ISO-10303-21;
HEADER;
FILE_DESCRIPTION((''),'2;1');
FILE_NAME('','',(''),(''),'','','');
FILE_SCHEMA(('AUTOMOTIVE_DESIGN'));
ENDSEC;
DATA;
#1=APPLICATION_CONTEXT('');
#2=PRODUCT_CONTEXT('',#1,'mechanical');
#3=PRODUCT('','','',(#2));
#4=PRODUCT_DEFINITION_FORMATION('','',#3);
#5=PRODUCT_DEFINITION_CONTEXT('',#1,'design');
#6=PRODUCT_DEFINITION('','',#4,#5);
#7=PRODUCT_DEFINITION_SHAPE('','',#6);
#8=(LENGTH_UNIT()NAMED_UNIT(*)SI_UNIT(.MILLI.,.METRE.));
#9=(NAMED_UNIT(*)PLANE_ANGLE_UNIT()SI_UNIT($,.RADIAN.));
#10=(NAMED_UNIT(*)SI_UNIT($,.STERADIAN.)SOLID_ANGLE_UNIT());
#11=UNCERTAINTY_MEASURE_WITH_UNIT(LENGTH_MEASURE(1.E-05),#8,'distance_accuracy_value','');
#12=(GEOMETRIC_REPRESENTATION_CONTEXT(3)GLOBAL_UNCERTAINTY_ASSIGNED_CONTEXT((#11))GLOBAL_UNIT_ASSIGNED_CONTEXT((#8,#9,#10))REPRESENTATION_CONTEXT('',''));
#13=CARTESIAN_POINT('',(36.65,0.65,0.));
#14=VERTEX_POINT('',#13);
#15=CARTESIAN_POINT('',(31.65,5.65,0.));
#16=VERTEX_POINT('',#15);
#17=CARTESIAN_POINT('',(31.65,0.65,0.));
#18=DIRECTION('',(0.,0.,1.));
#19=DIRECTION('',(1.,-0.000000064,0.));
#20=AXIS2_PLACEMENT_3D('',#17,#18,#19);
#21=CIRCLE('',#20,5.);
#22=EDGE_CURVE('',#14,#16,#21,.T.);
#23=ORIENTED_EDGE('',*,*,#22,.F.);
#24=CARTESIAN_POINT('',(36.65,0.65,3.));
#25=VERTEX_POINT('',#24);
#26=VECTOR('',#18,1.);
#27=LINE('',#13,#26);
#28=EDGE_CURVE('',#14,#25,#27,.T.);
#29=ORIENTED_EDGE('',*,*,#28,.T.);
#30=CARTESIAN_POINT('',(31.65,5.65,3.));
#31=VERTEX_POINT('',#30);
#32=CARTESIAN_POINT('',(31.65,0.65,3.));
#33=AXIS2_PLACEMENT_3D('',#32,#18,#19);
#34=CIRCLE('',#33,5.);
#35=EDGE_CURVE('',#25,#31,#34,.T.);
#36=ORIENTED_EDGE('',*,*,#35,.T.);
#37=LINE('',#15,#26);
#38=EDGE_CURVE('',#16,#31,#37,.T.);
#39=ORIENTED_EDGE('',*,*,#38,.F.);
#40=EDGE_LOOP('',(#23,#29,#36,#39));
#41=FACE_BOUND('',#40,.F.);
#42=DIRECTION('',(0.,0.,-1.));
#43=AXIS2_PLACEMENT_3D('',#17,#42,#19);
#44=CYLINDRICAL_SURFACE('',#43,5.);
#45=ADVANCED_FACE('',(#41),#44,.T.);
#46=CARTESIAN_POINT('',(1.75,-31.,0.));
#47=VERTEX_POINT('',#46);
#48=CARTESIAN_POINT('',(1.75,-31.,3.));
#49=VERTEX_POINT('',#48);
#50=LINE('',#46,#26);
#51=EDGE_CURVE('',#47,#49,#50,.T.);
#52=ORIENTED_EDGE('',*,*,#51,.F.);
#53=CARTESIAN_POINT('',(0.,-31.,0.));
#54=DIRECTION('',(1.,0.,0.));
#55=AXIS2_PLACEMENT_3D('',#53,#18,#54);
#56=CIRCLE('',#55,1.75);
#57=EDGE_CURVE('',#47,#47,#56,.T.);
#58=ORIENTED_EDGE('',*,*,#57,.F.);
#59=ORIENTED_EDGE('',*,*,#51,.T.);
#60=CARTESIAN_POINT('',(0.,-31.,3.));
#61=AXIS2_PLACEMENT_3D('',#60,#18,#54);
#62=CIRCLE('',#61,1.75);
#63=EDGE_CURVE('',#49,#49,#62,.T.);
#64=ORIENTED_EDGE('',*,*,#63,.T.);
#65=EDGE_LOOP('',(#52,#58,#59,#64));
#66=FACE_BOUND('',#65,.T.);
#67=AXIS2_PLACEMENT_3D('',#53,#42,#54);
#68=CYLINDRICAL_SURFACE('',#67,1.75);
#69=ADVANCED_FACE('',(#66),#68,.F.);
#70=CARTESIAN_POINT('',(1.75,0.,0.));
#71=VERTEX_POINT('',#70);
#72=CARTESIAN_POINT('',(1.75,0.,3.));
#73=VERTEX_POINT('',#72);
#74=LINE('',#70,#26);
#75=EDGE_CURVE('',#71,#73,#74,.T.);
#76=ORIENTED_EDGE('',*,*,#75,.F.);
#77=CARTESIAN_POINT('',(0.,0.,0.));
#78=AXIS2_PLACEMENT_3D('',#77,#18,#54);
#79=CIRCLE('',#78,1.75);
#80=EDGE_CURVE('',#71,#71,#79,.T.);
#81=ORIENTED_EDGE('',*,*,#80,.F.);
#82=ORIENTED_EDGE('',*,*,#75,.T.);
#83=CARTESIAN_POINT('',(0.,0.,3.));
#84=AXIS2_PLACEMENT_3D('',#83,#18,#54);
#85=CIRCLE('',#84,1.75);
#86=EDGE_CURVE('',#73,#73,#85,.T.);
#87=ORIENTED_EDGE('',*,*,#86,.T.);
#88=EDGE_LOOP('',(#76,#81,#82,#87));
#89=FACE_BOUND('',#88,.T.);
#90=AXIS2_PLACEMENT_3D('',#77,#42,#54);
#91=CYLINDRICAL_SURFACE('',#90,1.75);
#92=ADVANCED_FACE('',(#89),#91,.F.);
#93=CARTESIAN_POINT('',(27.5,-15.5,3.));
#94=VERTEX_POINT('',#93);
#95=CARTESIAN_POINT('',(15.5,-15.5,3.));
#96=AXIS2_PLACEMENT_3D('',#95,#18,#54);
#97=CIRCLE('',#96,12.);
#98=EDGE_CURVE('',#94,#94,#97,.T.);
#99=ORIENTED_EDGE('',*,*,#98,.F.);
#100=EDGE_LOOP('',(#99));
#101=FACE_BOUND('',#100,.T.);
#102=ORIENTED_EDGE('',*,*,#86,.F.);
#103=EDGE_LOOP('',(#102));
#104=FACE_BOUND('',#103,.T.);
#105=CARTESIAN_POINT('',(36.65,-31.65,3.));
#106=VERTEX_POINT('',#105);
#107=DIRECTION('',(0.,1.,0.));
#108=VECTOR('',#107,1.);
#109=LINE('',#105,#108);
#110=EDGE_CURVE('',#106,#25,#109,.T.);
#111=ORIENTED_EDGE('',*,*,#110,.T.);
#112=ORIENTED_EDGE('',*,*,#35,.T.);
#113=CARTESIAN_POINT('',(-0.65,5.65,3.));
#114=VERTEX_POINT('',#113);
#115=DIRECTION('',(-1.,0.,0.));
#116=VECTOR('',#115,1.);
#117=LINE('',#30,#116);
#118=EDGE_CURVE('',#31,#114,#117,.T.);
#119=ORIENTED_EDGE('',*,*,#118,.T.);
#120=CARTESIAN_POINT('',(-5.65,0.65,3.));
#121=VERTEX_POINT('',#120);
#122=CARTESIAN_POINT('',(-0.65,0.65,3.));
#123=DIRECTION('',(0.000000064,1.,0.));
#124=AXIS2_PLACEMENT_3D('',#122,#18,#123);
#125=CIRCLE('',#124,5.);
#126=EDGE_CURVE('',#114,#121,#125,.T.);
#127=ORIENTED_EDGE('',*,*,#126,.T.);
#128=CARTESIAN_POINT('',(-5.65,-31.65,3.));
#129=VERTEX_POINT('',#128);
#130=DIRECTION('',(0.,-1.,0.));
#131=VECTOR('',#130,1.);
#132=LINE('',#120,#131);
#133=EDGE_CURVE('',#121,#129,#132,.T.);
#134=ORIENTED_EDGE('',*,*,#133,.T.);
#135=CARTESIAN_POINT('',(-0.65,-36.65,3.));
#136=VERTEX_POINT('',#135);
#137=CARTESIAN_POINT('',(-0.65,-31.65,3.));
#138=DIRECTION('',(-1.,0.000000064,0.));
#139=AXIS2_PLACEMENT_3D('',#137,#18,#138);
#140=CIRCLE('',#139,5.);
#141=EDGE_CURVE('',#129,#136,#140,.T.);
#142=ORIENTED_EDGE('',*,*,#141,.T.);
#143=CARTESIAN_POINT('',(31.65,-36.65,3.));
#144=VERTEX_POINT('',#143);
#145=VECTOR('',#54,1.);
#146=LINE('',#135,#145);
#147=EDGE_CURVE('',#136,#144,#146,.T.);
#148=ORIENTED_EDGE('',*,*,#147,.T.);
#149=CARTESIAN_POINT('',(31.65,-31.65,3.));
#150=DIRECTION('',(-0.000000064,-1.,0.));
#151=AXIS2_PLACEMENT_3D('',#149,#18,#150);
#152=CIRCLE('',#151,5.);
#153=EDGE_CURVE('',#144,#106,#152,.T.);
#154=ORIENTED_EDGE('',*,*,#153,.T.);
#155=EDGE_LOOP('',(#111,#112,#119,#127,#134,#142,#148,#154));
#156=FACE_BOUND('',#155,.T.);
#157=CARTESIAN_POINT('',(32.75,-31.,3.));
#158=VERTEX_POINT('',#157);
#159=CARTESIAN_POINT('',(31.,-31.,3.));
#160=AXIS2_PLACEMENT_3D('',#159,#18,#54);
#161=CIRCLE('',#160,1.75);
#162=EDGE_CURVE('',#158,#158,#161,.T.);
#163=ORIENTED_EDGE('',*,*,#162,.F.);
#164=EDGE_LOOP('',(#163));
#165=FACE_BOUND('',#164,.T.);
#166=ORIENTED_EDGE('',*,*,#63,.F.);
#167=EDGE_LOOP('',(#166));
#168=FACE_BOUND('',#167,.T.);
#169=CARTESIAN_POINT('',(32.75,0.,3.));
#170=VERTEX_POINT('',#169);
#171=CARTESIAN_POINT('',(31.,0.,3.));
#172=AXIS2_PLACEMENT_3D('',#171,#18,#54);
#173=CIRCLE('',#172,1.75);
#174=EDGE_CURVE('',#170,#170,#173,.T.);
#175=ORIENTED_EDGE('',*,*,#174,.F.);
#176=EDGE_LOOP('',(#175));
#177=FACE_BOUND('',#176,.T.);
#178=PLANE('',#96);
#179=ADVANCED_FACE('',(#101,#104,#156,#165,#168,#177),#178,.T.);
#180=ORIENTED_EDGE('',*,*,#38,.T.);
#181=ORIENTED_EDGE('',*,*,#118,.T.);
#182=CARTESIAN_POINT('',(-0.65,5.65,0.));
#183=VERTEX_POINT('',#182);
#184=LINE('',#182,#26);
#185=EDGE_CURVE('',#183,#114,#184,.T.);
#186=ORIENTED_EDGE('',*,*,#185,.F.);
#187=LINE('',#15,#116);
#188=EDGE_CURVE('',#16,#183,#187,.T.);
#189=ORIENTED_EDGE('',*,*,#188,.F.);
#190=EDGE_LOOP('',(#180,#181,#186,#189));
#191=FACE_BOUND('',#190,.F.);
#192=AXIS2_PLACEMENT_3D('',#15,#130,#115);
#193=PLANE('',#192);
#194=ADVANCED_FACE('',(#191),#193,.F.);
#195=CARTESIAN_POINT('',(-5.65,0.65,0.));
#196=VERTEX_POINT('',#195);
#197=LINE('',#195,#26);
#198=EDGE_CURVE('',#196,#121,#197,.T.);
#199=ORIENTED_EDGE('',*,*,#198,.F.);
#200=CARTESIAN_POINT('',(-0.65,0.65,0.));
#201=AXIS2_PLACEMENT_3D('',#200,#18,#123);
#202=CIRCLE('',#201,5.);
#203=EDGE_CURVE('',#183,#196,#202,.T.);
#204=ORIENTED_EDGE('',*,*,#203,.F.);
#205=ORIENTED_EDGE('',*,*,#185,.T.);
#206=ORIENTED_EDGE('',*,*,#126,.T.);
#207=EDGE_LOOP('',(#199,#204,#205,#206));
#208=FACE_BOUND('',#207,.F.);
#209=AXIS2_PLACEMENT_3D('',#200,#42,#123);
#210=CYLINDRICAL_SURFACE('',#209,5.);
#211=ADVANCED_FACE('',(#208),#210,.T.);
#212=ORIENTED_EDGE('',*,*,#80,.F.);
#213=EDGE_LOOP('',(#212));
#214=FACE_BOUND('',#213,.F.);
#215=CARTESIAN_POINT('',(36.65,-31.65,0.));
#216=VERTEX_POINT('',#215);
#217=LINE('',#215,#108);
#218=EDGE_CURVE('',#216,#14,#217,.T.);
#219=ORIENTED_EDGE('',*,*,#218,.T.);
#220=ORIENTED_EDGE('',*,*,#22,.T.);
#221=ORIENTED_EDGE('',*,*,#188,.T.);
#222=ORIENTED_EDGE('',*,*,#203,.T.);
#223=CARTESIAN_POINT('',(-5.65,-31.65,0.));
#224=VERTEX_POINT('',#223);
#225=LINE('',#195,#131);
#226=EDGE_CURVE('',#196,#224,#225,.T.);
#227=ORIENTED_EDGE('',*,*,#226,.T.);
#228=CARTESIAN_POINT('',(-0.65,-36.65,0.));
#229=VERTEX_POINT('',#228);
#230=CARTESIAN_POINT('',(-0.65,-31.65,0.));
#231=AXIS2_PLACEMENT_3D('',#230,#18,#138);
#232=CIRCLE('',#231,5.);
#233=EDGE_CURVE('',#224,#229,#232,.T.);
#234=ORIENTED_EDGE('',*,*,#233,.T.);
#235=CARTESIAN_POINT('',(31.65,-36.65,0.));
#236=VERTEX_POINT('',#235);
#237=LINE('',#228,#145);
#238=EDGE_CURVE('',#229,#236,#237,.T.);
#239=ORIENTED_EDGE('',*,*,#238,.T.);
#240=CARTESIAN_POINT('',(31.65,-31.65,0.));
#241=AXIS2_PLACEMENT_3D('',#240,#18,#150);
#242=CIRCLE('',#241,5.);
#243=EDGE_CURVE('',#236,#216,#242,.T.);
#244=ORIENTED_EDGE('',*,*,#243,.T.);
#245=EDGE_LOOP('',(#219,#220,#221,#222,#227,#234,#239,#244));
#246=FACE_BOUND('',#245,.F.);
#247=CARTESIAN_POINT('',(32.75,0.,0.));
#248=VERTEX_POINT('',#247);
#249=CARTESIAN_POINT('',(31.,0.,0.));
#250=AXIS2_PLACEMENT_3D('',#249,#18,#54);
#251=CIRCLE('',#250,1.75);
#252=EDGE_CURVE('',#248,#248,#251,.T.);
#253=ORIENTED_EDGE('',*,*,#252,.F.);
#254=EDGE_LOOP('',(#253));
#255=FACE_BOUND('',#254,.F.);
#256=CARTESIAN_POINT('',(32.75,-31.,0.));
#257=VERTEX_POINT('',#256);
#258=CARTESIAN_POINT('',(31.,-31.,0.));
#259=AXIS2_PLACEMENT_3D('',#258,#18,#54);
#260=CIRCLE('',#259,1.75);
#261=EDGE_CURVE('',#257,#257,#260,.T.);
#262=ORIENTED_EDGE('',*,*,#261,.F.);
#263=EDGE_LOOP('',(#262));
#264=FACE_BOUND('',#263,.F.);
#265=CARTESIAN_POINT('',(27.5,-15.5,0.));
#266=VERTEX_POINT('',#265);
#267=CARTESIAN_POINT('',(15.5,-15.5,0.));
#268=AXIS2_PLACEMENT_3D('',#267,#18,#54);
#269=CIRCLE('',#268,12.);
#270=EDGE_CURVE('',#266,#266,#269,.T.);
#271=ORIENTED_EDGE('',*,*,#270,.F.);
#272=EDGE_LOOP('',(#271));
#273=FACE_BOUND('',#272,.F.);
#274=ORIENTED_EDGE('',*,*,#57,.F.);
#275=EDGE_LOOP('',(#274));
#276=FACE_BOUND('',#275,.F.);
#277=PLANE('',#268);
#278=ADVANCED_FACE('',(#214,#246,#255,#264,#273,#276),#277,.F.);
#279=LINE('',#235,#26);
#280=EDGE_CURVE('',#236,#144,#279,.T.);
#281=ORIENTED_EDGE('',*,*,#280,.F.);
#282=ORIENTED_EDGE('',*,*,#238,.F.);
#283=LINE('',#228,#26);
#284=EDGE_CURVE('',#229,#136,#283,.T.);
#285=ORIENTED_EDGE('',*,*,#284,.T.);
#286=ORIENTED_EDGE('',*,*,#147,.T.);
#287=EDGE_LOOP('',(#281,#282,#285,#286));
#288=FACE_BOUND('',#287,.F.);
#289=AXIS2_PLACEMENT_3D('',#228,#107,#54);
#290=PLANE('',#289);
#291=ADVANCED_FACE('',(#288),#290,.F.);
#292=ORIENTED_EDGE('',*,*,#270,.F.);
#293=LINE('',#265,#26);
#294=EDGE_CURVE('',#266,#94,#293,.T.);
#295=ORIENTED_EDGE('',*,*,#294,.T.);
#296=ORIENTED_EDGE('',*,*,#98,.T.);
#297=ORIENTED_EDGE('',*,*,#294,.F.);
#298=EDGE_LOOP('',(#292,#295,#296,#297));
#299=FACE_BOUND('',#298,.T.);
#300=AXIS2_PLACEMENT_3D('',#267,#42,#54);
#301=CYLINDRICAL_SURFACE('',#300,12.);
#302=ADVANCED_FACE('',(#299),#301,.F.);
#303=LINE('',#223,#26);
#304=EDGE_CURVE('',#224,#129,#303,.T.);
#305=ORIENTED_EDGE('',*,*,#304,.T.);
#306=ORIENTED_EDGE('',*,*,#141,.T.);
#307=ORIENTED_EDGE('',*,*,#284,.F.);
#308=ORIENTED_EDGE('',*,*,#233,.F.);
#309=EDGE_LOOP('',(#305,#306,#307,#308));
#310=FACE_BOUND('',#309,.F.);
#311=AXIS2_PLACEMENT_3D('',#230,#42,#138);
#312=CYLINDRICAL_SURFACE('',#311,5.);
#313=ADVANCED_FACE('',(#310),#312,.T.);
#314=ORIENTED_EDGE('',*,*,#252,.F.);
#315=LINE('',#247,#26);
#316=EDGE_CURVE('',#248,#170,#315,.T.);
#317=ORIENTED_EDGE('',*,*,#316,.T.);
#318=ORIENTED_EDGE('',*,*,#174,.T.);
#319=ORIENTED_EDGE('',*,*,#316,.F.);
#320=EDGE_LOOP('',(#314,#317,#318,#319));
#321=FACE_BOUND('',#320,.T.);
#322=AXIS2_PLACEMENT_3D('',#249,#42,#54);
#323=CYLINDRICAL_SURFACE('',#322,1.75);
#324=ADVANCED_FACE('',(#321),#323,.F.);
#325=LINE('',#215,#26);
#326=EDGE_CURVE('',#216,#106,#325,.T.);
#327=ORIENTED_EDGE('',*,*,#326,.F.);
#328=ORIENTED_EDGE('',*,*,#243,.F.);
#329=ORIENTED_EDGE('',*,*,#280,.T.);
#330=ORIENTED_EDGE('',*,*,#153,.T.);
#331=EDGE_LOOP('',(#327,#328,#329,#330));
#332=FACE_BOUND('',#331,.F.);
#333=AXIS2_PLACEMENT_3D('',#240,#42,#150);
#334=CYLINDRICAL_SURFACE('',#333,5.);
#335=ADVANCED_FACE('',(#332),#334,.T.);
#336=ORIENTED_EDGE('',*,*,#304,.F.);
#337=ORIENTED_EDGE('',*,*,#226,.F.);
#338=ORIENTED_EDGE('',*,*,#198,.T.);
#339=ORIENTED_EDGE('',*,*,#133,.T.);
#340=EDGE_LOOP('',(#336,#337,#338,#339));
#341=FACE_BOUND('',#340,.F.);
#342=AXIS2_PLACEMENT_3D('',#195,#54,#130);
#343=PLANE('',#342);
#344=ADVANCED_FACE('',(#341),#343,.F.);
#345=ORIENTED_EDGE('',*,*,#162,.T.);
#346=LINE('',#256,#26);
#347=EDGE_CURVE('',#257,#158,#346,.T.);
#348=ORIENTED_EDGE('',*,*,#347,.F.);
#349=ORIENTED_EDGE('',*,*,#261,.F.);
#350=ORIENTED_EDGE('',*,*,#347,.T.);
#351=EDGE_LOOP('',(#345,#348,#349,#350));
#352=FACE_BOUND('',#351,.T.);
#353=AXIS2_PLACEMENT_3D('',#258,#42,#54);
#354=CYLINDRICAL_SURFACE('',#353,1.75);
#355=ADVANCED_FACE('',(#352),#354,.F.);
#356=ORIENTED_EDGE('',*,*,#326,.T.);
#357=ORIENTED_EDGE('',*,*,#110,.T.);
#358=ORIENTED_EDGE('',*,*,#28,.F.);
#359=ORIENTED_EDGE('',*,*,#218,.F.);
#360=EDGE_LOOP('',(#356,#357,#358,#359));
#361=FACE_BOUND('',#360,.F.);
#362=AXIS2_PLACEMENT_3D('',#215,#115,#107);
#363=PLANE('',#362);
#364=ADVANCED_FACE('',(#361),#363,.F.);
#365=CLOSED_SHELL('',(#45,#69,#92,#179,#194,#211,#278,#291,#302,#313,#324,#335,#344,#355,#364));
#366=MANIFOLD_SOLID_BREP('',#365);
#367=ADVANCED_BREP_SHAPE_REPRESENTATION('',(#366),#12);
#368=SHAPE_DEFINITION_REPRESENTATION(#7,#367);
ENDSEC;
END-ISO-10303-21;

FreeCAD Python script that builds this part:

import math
import FreeCAD as App
import Part
import Sketcher
from FreeCAD import Vector
Q = App.Units.Quantity

doc = App.newDocument("Part")
params = doc.addObject("Spreadsheet::Sheet", "Params")
for row, (alias, value) in enumerate([
    ("sketch1_diameter", "24 mm"),
    ("sketch1_radius", "5 mm"),
    ("sketch1_diameter2", "3.5 mm"),
    ("sketch1_width", "32.3 mm"),
    ("pad1_length", "3 mm"),
], start=1):
    params.set(f"A{row}", alias)
    params.set(f"B{row}", "=" + value)
    params.setAlias(f"B{row}", alias)

body = doc.addObject("PartDesign::Body", "Body")

# Sketch on XY plane
sketch1 = body.newObject("Sketcher::SketchObject", "Sketch")
sketch1.AttachmentSupport = (doc.getObject("XY_Plane"), [""])
sketch1.MapMode = "FlatFace"
sketch1.addGeometry([
    Part.LineSegment(Vector(31.65, 5.65, 0), Vector(-0.65, 5.65, 0)),  # 0
    Part.ArcOfCircle(Part.Circle(Vector(-0.65, 0.65, 0), Vector(0, 0, 1), 5), math.radians(89.999996), math.radians(180.000004)),  # 1
    Part.LineSegment(Vector(-5.65, 0.65, 0), Vector(-5.65, -31.65, 0)),  # 2
    Part.ArcOfCircle(Part.Circle(Vector(-0.65, -31.65, 0), Vector(0, 0, 1), 5), math.radians(179.999996), math.radians(270.000004)),  # 3
    Part.LineSegment(Vector(-0.65, -36.65, 0), Vector(31.65, -36.65, 0)),  # 4
    Part.ArcOfCircle(Part.Circle(Vector(31.65, -31.65, 0), Vector(0, 0, 1), 5), math.radians(-90.000004), math.radians(0.000004)),  # 5
    Part.LineSegment(Vector(36.65, -31.65, 0), Vector(36.65, 0.65, 0)),  # 6
    Part.ArcOfCircle(Part.Circle(Vector(31.65, 0.65, 0), Vector(0, 0, 1), 5), math.radians(-0.000004), math.radians(90.000004)),  # 7
    Part.Circle(Vector(0, -31, 0), Vector(0, 0, 1), 1.75),  # 8
    Part.Circle(Vector(31, -31, 0), Vector(0, 0, 1), 1.75),  # 9
    Part.Circle(Vector(0, 0, 0), Vector(0, 0, 1), 1.75),  # 10
    Part.Circle(Vector(15.5, -15.5, 0), Vector(0, 0, 1), 12),  # 11
    Part.Circle(Vector(31, 0, 0), Vector(0, 0, 1), 1.75),  # 12
], False)
sketch1.addConstraint([
    Sketcher.Constraint("Tangent", 0, 2, 1, 1),
    Sketcher.Constraint("Tangent", 1, 2, 2, 1),
    Sketcher.Constraint("Tangent", 2, 2, 3, 1),
    Sketcher.Constraint("Tangent", 3, 2, 4, 1),
    Sketcher.Constraint("Tangent", 4, 2, 5, 1),
    Sketcher.Constraint("Tangent", 5, 2, 6, 1),
    Sketcher.Constraint("Tangent", 6, 2, 7, 1),
    Sketcher.Constraint("Tangent", 7, 2, 0, 1),
    Sketcher.Constraint("Horizontal", 0),
    Sketcher.Constraint("Vertical", 2),
    Sketcher.Constraint("Horizontal", 4),
    Sketcher.Constraint("Vertical", 6),
    Sketcher.Constraint("Coincident", 10, 3, -1, 1),
    Sketcher.Constraint("Equal", 1, 3),
    Sketcher.Constraint("Equal", 3, 5),
    Sketcher.Constraint("Equal", 5, 7),
    Sketcher.Constraint("Equal", 8, 9),
    Sketcher.Constraint("Equal", 9, 10),
    Sketcher.Constraint("Equal", 10, 12),
    Sketcher.Constraint("PointOnObject", 8, 3, -2),
    Sketcher.Constraint("PointOnObject", 12, 3, -1),
    Sketcher.Constraint("Horizontal", 8, 3, 9, 3),
    Sketcher.Constraint("Vertical", 9, 3, 12, 3),
    Sketcher.Constraint("Equal", 4, 2),
    Sketcher.Constraint("Diameter", 11, Q("24 mm")),
    Sketcher.Constraint("Radius", 1, Q("5 mm")),
    Sketcher.Constraint("Diameter", 8, Q("3.5 mm")),
    Sketcher.Constraint("DistanceX", 0, 2, 0, 1, Q("32.3 mm")),
    Sketcher.Constraint("DistanceY", 8, 3, -1, 1, Q("31 mm")),
    Sketcher.Constraint("DistanceX", -1, 1, 9, 3, Q("31 mm")),
    Sketcher.Constraint("DistanceX", -1, 1, 11, 3, Q("15.5 mm")),
    Sketcher.Constraint("DistanceY", 11, 3, -1, 1, Q("15.5 mm")),
    Sketcher.Constraint("DistanceX", 1, 3, -1, 1, Q("0.65 mm")),
    Sketcher.Constraint("DistanceY", -1, 1, 1, 3, Q("0.65 mm")),
])
sketch1.setExpression("Constraints[24]", "Params.sketch1_diameter")
sketch1.setExpression("Constraints[25]", "Params.sketch1_radius")
sketch1.setExpression("Constraints[26]", "Params.sketch1_diameter2")
sketch1.setExpression("Constraints[27]", "Params.sketch1_width")
pad1 = body.newObject("PartDesign::Pad", "Pad")
pad1.Profile = sketch1
pad1.setExpression("Length", "Params.pad1_length")

doc.recompute()
